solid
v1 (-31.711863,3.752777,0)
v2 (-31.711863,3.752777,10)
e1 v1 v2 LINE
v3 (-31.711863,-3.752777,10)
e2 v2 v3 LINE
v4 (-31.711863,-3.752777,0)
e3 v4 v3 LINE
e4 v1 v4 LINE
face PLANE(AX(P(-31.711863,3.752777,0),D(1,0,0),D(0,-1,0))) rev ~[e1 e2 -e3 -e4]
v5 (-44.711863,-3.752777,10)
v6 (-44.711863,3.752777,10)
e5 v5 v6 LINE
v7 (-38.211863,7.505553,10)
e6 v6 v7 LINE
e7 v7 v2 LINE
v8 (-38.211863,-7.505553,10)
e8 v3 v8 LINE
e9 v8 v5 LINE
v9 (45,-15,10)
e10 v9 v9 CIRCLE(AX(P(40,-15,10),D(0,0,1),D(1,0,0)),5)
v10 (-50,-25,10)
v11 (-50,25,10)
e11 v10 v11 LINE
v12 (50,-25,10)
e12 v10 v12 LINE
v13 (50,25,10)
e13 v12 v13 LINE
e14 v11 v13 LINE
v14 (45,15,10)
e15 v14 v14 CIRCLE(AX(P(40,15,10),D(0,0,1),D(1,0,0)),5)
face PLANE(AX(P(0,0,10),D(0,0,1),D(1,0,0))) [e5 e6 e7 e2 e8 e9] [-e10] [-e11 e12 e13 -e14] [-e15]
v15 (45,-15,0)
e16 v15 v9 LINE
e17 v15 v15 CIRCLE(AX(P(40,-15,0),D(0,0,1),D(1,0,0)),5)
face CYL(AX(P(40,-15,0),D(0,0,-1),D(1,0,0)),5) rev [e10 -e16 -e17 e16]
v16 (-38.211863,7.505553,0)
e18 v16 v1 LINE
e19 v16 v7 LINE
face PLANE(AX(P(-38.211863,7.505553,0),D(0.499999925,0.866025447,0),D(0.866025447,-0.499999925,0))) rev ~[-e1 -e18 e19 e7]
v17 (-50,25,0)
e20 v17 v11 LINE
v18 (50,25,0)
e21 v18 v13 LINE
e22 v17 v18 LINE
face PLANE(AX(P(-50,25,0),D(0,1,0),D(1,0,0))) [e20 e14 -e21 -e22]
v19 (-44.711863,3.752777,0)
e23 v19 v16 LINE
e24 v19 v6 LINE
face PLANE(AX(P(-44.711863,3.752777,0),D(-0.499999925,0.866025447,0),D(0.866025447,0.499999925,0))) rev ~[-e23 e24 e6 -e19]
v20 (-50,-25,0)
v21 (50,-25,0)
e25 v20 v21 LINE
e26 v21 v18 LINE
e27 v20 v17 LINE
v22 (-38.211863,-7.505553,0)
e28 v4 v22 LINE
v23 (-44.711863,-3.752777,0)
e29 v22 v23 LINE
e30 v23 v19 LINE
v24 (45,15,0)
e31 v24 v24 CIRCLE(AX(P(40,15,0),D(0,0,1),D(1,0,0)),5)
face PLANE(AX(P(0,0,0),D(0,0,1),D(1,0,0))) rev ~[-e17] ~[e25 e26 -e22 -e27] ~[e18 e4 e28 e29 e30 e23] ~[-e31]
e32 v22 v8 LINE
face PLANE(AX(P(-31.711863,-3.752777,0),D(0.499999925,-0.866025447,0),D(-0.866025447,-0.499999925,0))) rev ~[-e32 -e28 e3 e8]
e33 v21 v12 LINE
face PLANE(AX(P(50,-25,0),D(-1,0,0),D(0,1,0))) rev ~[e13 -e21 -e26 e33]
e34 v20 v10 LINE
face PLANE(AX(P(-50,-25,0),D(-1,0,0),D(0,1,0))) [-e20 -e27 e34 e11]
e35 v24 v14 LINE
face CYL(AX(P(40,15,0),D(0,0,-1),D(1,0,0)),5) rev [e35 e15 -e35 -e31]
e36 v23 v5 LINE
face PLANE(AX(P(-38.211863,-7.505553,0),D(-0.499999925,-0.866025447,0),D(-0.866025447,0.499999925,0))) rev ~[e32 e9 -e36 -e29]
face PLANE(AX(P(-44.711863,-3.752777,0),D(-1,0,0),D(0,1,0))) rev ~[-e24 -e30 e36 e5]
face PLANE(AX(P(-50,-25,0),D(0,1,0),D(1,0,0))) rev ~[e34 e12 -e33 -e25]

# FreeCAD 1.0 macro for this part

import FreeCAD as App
import Part
import Sketcher
from FreeCAD import Vector
Q = App.Units.Quantity


def add_polygon(sketch, points):
    """Adds a closed chain of lines whose ends are joined by coincident constraints."""
    first, n = sketch.GeometryCount, len(points)
    for a, b in zip(points, points[1:] + points[:1]):
        sketch.addGeometry(Part.LineSegment(App.Vector(*a, 0), App.Vector(*b, 0)), False)
    for i in range(n):
        sketch.addConstraint(Sketcher.Constraint("Coincident", first + i, 2, first + (i + 1) % n, 1))

doc = App.newDocument("Part")
body = doc.addObject("PartDesign::Body", "Body")

# Sketch on XY plane
sketch1 = body.newObject("Sketcher::SketchObject", "Sketch")
sketch1.AttachmentSupport = (doc.getObject("XY_Plane"), [""])
sketch1.MapMode = "FlatFace"
add_polygon(sketch1, [(-50, 25), (-50, -25), (50, -25), (50, 25)])  # lines 0-3
sketch1.addGeometry(Part.Circle(Vector(40, -15, 0), Vector(0, 0, 1), 5), False)  # 4
add_polygon(sketch1, [(-38.211863, 7.505553), (-31.711863, 3.752777), (-31.711863, -3.752777), (-38.211863, -7.505553), (-44.711863, -3.752777), (-44.711863, 3.752777)])  # lines 5-10
sketch1.addGeometry(Part.Circle(Vector(40, 15, 0), Vector(0, 0, 1), 5), False)  # 11
sketch1.addConstraint(Sketcher.Constraint("Vertical", 0))
sketch1.addConstraint(Sketcher.Constraint("Horizontal", 1))
sketch1.addConstraint(Sketcher.Constraint("Vertical", 2))
sketch1.addConstraint(Sketcher.Constraint("Horizontal", 3))
sketch1.addConstraint(Sketcher.Constraint("Vertical", 6))
sketch1.addConstraint(Sketcher.Constraint("Vertical", 9))
sketch1.addConstraint(Sketcher.Constraint("Equal", 4, 11))
sketch1.addConstraint(Sketcher.Constraint("Symmetric", 0, 2, 2, 2, -1, 1))
sketch1.addConstraint(Sketcher.Constraint("Symmetric", 4, 3, 11, 3, -1))
sketch1.addConstraint(Sketcher.Constraint("Symmetric", 7, 2, 10, 2, -1))
sketch1.addConstraint(Sketcher.Constraint("Parallel", 5, 8))
sketch1.addConstraint(Sketcher.Constraint("Parallel", 7, 10))
sketch1.addConstraint(Sketcher.Constraint("Horizontal", 6, 2, 8, 2))
sketch1.addConstraint(Sketcher.Constraint("Horizontal", 5, 2, 9, 2))
sketch1.addConstraint(Sketcher.Constraint("Diameter", 4, Q("10 mm")))
sketch1.addConstraint(Sketcher.Constraint("DistanceX", 1, 1, 1, 2, Q("100 mm")))
sketch1.addConstraint(Sketcher.Constraint("DistanceY", 0, 2, 0, 1, Q("50 mm")))
sketch1.addConstraint(Sketcher.Constraint("Angle", 5, Q("-29.999995 deg")))
sketch1.addConstraint(Sketcher.Constraint("DistanceX", -1, 1, 4, 3, Q("40 mm")))
sketch1.addConstraint(Sketcher.Constraint("DistanceY", 4, 3, -1, 1, Q("15 mm")))
sketch1.addConstraint(Sketcher.Constraint("DistanceX", 8, 2, 6, 2, Q("13 mm")))
sketch1.addConstraint(Sketcher.Constraint("DistanceY", 6, 2, 6, 1, Q("7.505554 mm")))
sketch1.addConstraint(Sketcher.Constraint("DistanceX", 5, 2, -1, 1, Q("31.711863 mm")))
pad1 = body.newObject("PartDesign::Pad", "Pad")
pad1.Profile = sketch1
pad1.Length = 10

doc.recompute()
